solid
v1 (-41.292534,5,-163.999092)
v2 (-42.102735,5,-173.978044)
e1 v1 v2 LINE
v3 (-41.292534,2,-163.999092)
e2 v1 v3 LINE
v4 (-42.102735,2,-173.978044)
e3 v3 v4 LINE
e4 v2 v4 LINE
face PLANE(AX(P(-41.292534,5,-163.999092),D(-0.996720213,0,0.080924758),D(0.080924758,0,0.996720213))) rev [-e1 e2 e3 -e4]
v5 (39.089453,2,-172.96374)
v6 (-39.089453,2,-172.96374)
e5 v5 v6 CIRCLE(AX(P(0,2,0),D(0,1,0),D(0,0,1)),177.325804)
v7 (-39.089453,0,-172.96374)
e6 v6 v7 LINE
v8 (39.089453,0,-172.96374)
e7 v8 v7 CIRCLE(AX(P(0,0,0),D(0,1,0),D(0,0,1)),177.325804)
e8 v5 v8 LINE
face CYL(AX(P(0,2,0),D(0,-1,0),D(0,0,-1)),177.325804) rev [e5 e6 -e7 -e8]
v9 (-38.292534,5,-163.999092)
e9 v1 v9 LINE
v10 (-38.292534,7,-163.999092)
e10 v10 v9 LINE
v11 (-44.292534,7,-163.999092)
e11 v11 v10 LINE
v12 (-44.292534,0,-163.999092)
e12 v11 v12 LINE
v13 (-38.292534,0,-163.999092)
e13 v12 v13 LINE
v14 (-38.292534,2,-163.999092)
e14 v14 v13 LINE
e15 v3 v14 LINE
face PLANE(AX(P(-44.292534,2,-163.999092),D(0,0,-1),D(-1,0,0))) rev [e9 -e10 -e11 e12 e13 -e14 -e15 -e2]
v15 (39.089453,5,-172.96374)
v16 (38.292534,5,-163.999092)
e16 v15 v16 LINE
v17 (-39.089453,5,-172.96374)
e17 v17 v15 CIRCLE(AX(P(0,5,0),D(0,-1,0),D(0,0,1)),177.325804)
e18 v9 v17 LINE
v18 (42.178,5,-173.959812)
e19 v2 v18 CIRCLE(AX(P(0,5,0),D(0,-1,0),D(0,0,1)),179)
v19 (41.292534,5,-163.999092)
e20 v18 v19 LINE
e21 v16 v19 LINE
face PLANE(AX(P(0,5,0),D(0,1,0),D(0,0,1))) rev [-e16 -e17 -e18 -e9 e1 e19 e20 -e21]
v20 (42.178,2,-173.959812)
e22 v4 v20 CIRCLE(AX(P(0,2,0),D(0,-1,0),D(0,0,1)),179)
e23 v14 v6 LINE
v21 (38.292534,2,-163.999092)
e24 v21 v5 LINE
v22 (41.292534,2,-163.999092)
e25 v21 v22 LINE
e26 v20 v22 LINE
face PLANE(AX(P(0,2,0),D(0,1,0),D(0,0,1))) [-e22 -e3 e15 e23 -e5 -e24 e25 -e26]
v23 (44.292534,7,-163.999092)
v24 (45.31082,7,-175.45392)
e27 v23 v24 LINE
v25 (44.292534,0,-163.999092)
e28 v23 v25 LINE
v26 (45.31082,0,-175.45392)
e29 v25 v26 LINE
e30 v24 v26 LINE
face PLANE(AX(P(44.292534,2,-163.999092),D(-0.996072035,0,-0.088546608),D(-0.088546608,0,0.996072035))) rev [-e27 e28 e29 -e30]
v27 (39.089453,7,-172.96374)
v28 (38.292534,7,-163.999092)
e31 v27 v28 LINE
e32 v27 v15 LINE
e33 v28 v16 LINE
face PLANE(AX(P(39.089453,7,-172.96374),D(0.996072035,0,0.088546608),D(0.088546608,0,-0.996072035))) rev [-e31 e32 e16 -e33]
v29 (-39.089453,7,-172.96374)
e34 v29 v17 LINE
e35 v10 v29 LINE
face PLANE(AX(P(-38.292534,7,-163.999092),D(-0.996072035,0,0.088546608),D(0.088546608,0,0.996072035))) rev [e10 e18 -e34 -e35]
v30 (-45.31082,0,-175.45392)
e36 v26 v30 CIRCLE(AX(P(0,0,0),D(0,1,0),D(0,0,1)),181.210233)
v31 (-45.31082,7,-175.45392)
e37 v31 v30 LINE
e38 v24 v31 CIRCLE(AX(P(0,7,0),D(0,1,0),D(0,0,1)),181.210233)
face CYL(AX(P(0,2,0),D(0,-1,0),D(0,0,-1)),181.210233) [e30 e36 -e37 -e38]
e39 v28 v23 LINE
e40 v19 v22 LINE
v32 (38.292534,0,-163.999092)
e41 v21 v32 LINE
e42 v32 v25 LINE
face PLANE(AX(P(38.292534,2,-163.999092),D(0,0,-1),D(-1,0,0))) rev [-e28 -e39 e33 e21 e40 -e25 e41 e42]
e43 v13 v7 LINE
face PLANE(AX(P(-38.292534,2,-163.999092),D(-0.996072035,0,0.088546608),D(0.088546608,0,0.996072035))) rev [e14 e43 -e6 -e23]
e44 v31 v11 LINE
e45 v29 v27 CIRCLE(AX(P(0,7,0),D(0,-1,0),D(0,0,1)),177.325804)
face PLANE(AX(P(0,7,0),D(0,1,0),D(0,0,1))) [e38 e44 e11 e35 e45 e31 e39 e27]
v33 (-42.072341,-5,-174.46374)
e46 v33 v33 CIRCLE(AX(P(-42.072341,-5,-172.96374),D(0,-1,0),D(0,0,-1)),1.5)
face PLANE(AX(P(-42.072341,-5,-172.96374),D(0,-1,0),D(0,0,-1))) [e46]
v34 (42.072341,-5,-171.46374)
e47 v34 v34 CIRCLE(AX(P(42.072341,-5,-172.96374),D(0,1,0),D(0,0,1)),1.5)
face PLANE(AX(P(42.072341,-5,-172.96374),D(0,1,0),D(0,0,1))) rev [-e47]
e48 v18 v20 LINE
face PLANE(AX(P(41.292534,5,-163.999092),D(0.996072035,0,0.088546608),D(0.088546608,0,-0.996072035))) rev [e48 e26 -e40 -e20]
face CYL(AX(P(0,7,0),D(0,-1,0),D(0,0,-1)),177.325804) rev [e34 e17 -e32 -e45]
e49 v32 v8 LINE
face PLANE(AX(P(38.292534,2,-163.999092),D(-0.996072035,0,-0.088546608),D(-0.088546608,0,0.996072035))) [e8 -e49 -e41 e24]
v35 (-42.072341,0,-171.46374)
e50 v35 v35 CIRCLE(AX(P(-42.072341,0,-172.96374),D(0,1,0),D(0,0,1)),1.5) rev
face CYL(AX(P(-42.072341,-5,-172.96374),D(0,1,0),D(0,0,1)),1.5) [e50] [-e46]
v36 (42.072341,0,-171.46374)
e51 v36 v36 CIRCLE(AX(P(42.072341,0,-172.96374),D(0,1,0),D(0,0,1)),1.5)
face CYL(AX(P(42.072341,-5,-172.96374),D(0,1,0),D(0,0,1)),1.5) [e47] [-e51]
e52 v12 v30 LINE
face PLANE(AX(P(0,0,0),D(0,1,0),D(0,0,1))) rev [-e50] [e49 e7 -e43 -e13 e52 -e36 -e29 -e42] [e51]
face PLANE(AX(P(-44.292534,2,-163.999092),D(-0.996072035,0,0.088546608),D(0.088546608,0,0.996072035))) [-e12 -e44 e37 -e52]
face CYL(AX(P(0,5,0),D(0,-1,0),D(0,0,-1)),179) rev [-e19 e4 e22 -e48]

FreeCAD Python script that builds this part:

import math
import FreeCAD as App
import Part
import Sketcher

V = App.Vector
Q = App.Units.Quantity

doc = App.newDocument("Part")
params = doc.addObject("Spreadsheet::Sheet", "Params")
for row, (alias, value) in enumerate([
    ("sketch1_width", "6 mm"),
    ("sketch1_length", "9 mm"),
    ("sketch1_length2", "11.5 mm"),
    ("pad1_length", "2 mm"),
    ("sketch2_radius", "179 mm"),
    ("sketch2_width", "3 mm"),
    ("sketch2_length", "10 mm"),
    ("sketch2_length2", "11.5 mm"),
    ("pad2_length", "3 mm"),
    ("sketch3_width", "6 mm"),
    ("sketch3_length", "9 mm"),
    ("sketch3_length2", "11.5 mm"),
    ("pad3_length", "2 mm"),
    ("sketch4_diameter", "3 mm"),
    ("pad4_length", "5 mm"),
], start=1):
    params.set(f"A{row}", alias)
    params.set(f"B{row}", "=" + value)
    params.setAlias(f"B{row}", alias)

body = doc.addObject("PartDesign::Body", "Body")

sketch1 = body.newObject("Sketcher::SketchObject", "Sketch")
sketch1.AttachmentSupport = (doc.getObject("XZ_Plane"), [""])
sketch1.MapMode = "FlatFace"
sketch1.addGeometry([
    Part.LineSegment(V(-44, -164, 0), V(-38, -164, 0)),
    Part.LineSegment(V(-38, -164, 0), V(-39, -173, 0)),
    Part.ArcOfCircle(Part.Circle(V(0, 0, 0), V(0, 0, 1), 177), math.radians(-103), math.radians(-77)),
    Part.LineSegment(V(39, -173, 0), V(38, -164, 0)),
    Part.LineSegment(V(38, -164, 0), V(44, -164, 0)),
    Part.LineSegment(V(44, -164, 0), V(45, -175, 0)),
    Part.ArcOfCircle(Part.Circle(V(0, 0, 0), V(0, 0, 1), 181), math.radians(-104), math.radians(-76)),
    Part.LineSegment(V(-45, -175, 0), V(-44, -164, 0)),
], False)
sketch1.addConstraint([
    Sketcher.Constraint("Coincident", 0, 2, 1, 1),
    Sketcher.Constraint("Coincident", 1, 2, 2, 1),
    Sketcher.Constraint("Coincident", 2, 2, 3, 1),
    Sketcher.Constraint("Coincident", 3, 2, 4, 1),
    Sketcher.Constraint("Coincident", 4, 2, 5, 1),
    Sketcher.Constraint("Coincident", 5, 2, 6, 2),
    Sketcher.Constraint("Coincident", 6, 1, 7, 1),
    Sketcher.Constraint("Coincident", 7, 2, 0, 1),
    Sketcher.Constraint("Horizontal", 0),
    Sketcher.Constraint("Horizontal", 4),
    Sketcher.Constraint("Coincident", 2, 3, -1, 1),
    Sketcher.Constraint("Coincident", 6, 3, -1, 1),
    Sketcher.Constraint("Symmetric", 0, 2, 3, 2, -2),
    Sketcher.Constraint("Parallel", 3, 5),
    Sketcher.Constraint("Parallel", 1, 7),
    Sketcher.Constraint("Horizontal", 1, 2, 2, 2),
    Sketcher.Constraint("Horizontal", 5, 2, 6, 1),
    Sketcher.Constraint("DistanceX", 0, 1, 0, 2, Q("6 mm")),
    Sketcher.Constraint("Distance", 1, Q("9 mm")),
    Sketcher.Constraint("Distance", 5, Q("11.5 mm")),
    Sketcher.Constraint("Angle", 1, Q("-95.08 deg")),
    Sketcher.Constraint("Radius", 2, Q("177.325804 mm")),
    Sketcher.Constraint("Radius", 6, Q("181.210233 mm")),
])
sketch1.setExpression("Constraints[17]", "Params.sketch1_width")
sketch1.setExpression("Constraints[18]", "Params.sketch1_length")
sketch1.setExpression("Constraints[19]", "Params.sketch1_length2")
pad1 = body.newObject("PartDesign::Pad", "Pad")
pad1.Profile = sketch1
pad1.setExpression("Length", "Params.pad1_length")
pad1.Reversed = True

sketch2 = body.newObject("Sketcher::SketchObject", "Sketch001")
sketch2.AttachmentSupport = (doc.getObject("XZ_Plane"), [""])
sketch2.MapMode = "FlatFace"
sketch2.AttachmentOffset = App.Placement(V(0, 0, -2), App.Rotation())
sketch2.addGeometry([
    Part.LineSegment(V(-41.292534, -163.999092, 0), V(-42.102735, -173.978044, 0)),
    Part.ArcOfCircle(Part.Circle(V(0, 0, 0), V(0, 0, 1), 179), math.radians(-103.60405), math.radians(-76.371162)),
    Part.LineSegment(V(42.178, -173.959812, 0), V(41.292534, -163.999092, 0)),
    Part.LineSegment(V(41.292534, -163.999092, 0), V(44.292534, -163.999092, 0)),
    Part.LineSegment(V(44.292534, -163.999092, 0), V(45.31082, -175.45392, 0)),
    Part.ArcOfCircle(Part.Circle(V(0, 0, 0), V(0, 0, 1), 181.210233), math.radians(-104.48021), math.radians(-75.51979)),
    Part.LineSegment(V(-45.31082, -175.45392, 0), V(-44.292534, -163.999092, 0)),
    Part.LineSegment(V(-44.292534, -163.999092, 0), V(-41.292534, -163.999092, 0)),
], False)
sketch2.addConstraint([
    Sketcher.Constraint("Coincident", 0, 2, 1, 1),
    Sketcher.Constraint("Coincident", 1, 2, 2, 1),
    Sketcher.Constraint("Coincident", 2, 2, 3, 1),
    Sketcher.Constraint("Coincident", 3, 2, 4, 1),
    Sketcher.Constraint("Coincident", 4, 2, 5, 2),
    Sketcher.Constraint("Coincident", 5, 1, 6, 1),
    Sketcher.Constraint("Coincident", 6, 2, 7, 1),
    Sketcher.Constraint("Coincident", 7, 2, 0, 1),
    Sketcher.Constraint("Horizontal", 3),
    Sketcher.Constraint("Horizontal", 7),
    Sketcher.Constraint("Coincident", 1, 3, -1, 1),
    Sketcher.Constraint("Coincident", 5, 3, -1, 1),
    Sketcher.Constraint("Symmetric", 3, 2, 6, 2, -2),
    Sketcher.Constraint("Parallel", 2, 4),
    Sketcher.Constraint("Horizontal", 4, 2, 5, 1),
    Sketcher.Constraint("Equal", 3, 7),
    Sketcher.Constraint("Radius", 1, Q("179 mm")),
    Sketcher.Constraint("DistanceX", 3, 1, 3, 2, Q("3 mm")),
    Sketcher.Constraint("Distance", 2, Q("10 mm")),
    Sketcher.Constraint("Distance", 4, Q("11.5 mm")),
    Sketcher.Constraint("Angle", 2, Q("95.08 deg")),
    Sketcher.Constraint("Radius", 5, Q("181.210233 mm")),
    Sketcher.Constraint("DistanceX", 6, 2, 0, 2, Q("2.189798 mm")),
])
sketch2.setExpression("Constraints[16]", "Params.sketch2_radius")
sketch2.setExpression("Constraints[17]", "Params.sketch2_width")
sketch2.setExpression("Constraints[18]", "Params.sketch2_length")
sketch2.setExpression("Constraints[19]", "Params.sketch2_length2")
pad2 = body.newObject("PartDesign::Pad", "Pad001")
pad2.Profile = sketch2
pad2.setExpression("Length", "Params.pad2_length")
pad2.Reversed = True

sketch3 = body.newObject("Sketcher::SketchObject", "Sketch002")
sketch3.AttachmentSupport = (doc.getObject("XZ_Plane"), [""])
sketch3.MapMode = "FlatFace"
sketch3.AttachmentOffset = App.Placement(V(0, 0, -5), App.Rotation())
sketch3.addGeometry([
    Part.LineSegment(V(-44, -164, 0), V(-38, -164, 0)),
    Part.LineSegment(V(-38, -164, 0), V(-39, -173, 0)),
    Part.ArcOfCircle(Part.Circle(V(0, 0, 0), V(0, 0, 1), 177), math.radians(-103), math.radians(-77)),
    Part.LineSegment(V(39, -173, 0), V(38, -164, 0)),
    Part.LineSegment(V(38, -164, 0), V(44, -164, 0)),
    Part.LineSegment(V(44, -164, 0), V(45, -175, 0)),
    Part.ArcOfCircle(Part.Circle(V(0, 0, 0), V(0, 0, 1), 181), math.radians(-104), math.radians(-76)),
    Part.LineSegment(V(-45, -175, 0), V(-44, -164, 0)),
], False)
sketch3.addConstraint([
    Sketcher.Constraint("Coincident", 0, 2, 1, 1),
    Sketcher.Constraint("Coincident", 1, 2, 2, 1),
    Sketcher.Constraint("Coincident", 2, 2, 3, 1),
    Sketcher.Constraint("Coincident", 3, 2, 4, 1),
    Sketcher.Constraint("Coincident", 4, 2, 5, 1),
    Sketcher.Constraint("Coincident", 5, 2, 6, 2),
    Sketcher.Constraint("Coincident", 6, 1, 7, 1),
    Sketcher.Constraint("Coincident", 7, 2, 0, 1),
    Sketcher.Constraint("Horizontal", 0),
    Sketcher.Constraint("Horizontal", 4),
    Sketcher.Constraint("Coincident", 2, 3, -1, 1),
    Sketcher.Constraint("Coincident", 6, 3, -1, 1),
    Sketcher.Constraint("Symmetric", 0, 2, 3, 2, -2),
    Sketcher.Constraint("Parallel", 3, 5),
    Sketcher.Constraint("Parallel", 1, 7),
    Sketcher.Constraint("Horizontal", 1, 2, 2, 2),
    Sketcher.Constraint("Horizontal", 5, 2, 6, 1),
    Sketcher.Constraint("DistanceX", 0, 1, 0, 2, Q("6 mm")),
    Sketcher.Constraint("Distance", 1, Q("9 mm")),
    Sketcher.Constraint("Distance", 5, Q("11.5 mm")),
    Sketcher.Constraint("Angle", 1, Q("-95.08 deg")),
    Sketcher.Constraint("Radius", 2, Q("177.325804 mm")),
    Sketcher.Constraint("Radius", 6, Q("181.210233 mm")),
])
sketch3.setExpression("Constraints[17]", "Params.sketch3_width")
sketch3.setExpression("Constraints[18]", "Params.sketch3_length")
sketch3.setExpression("Constraints[19]", "Params.sketch3_length2")
pad3 = body.newObject("PartDesign::Pad", "Pad002")
pad3.Profile = sketch3
pad3.setExpression("Length", "Params.pad3_length")
pad3.Reversed = True

sketch4 = body.newObject("Sketcher::SketchObject", "Sketch003")
sketch4.AttachmentSupport = (doc.getObject("XZ_Plane"), [""])
sketch4.MapMode = "FlatFace"
sketch4.addGeometry([
    Part.Circle(V(-42.1, -173, 0), V(0, 0, 1), 1.5),
    Part.Circle(V(42.1, -173, 0), V(0, 0, 1), 1.5),
], False)
sketch4.addConstraint([
    Sketcher.Constraint("Equal", 0, 1),
    Sketcher.Constraint("Symmetric", 0, 3, 1, 3, -2),
    Sketcher.Constraint("Diameter", 0, Q("3 mm")),
    Sketcher.Constraint("DistanceX", 0, 3, -1, 1, Q("42.072341 mm")),
    Sketcher.Constraint("DistanceY", 0, 3, -1, 1, Q("172.96374 mm")),
])
sketch4.setExpression("Constraints[2]", "Params.sketch4_diameter")
pad4 = body.newObject("PartDesign::Pad", "Pad003")
pad4.Profile = sketch4
pad4.setExpression("Length", "Params.pad4_length")

doc.recompute()
